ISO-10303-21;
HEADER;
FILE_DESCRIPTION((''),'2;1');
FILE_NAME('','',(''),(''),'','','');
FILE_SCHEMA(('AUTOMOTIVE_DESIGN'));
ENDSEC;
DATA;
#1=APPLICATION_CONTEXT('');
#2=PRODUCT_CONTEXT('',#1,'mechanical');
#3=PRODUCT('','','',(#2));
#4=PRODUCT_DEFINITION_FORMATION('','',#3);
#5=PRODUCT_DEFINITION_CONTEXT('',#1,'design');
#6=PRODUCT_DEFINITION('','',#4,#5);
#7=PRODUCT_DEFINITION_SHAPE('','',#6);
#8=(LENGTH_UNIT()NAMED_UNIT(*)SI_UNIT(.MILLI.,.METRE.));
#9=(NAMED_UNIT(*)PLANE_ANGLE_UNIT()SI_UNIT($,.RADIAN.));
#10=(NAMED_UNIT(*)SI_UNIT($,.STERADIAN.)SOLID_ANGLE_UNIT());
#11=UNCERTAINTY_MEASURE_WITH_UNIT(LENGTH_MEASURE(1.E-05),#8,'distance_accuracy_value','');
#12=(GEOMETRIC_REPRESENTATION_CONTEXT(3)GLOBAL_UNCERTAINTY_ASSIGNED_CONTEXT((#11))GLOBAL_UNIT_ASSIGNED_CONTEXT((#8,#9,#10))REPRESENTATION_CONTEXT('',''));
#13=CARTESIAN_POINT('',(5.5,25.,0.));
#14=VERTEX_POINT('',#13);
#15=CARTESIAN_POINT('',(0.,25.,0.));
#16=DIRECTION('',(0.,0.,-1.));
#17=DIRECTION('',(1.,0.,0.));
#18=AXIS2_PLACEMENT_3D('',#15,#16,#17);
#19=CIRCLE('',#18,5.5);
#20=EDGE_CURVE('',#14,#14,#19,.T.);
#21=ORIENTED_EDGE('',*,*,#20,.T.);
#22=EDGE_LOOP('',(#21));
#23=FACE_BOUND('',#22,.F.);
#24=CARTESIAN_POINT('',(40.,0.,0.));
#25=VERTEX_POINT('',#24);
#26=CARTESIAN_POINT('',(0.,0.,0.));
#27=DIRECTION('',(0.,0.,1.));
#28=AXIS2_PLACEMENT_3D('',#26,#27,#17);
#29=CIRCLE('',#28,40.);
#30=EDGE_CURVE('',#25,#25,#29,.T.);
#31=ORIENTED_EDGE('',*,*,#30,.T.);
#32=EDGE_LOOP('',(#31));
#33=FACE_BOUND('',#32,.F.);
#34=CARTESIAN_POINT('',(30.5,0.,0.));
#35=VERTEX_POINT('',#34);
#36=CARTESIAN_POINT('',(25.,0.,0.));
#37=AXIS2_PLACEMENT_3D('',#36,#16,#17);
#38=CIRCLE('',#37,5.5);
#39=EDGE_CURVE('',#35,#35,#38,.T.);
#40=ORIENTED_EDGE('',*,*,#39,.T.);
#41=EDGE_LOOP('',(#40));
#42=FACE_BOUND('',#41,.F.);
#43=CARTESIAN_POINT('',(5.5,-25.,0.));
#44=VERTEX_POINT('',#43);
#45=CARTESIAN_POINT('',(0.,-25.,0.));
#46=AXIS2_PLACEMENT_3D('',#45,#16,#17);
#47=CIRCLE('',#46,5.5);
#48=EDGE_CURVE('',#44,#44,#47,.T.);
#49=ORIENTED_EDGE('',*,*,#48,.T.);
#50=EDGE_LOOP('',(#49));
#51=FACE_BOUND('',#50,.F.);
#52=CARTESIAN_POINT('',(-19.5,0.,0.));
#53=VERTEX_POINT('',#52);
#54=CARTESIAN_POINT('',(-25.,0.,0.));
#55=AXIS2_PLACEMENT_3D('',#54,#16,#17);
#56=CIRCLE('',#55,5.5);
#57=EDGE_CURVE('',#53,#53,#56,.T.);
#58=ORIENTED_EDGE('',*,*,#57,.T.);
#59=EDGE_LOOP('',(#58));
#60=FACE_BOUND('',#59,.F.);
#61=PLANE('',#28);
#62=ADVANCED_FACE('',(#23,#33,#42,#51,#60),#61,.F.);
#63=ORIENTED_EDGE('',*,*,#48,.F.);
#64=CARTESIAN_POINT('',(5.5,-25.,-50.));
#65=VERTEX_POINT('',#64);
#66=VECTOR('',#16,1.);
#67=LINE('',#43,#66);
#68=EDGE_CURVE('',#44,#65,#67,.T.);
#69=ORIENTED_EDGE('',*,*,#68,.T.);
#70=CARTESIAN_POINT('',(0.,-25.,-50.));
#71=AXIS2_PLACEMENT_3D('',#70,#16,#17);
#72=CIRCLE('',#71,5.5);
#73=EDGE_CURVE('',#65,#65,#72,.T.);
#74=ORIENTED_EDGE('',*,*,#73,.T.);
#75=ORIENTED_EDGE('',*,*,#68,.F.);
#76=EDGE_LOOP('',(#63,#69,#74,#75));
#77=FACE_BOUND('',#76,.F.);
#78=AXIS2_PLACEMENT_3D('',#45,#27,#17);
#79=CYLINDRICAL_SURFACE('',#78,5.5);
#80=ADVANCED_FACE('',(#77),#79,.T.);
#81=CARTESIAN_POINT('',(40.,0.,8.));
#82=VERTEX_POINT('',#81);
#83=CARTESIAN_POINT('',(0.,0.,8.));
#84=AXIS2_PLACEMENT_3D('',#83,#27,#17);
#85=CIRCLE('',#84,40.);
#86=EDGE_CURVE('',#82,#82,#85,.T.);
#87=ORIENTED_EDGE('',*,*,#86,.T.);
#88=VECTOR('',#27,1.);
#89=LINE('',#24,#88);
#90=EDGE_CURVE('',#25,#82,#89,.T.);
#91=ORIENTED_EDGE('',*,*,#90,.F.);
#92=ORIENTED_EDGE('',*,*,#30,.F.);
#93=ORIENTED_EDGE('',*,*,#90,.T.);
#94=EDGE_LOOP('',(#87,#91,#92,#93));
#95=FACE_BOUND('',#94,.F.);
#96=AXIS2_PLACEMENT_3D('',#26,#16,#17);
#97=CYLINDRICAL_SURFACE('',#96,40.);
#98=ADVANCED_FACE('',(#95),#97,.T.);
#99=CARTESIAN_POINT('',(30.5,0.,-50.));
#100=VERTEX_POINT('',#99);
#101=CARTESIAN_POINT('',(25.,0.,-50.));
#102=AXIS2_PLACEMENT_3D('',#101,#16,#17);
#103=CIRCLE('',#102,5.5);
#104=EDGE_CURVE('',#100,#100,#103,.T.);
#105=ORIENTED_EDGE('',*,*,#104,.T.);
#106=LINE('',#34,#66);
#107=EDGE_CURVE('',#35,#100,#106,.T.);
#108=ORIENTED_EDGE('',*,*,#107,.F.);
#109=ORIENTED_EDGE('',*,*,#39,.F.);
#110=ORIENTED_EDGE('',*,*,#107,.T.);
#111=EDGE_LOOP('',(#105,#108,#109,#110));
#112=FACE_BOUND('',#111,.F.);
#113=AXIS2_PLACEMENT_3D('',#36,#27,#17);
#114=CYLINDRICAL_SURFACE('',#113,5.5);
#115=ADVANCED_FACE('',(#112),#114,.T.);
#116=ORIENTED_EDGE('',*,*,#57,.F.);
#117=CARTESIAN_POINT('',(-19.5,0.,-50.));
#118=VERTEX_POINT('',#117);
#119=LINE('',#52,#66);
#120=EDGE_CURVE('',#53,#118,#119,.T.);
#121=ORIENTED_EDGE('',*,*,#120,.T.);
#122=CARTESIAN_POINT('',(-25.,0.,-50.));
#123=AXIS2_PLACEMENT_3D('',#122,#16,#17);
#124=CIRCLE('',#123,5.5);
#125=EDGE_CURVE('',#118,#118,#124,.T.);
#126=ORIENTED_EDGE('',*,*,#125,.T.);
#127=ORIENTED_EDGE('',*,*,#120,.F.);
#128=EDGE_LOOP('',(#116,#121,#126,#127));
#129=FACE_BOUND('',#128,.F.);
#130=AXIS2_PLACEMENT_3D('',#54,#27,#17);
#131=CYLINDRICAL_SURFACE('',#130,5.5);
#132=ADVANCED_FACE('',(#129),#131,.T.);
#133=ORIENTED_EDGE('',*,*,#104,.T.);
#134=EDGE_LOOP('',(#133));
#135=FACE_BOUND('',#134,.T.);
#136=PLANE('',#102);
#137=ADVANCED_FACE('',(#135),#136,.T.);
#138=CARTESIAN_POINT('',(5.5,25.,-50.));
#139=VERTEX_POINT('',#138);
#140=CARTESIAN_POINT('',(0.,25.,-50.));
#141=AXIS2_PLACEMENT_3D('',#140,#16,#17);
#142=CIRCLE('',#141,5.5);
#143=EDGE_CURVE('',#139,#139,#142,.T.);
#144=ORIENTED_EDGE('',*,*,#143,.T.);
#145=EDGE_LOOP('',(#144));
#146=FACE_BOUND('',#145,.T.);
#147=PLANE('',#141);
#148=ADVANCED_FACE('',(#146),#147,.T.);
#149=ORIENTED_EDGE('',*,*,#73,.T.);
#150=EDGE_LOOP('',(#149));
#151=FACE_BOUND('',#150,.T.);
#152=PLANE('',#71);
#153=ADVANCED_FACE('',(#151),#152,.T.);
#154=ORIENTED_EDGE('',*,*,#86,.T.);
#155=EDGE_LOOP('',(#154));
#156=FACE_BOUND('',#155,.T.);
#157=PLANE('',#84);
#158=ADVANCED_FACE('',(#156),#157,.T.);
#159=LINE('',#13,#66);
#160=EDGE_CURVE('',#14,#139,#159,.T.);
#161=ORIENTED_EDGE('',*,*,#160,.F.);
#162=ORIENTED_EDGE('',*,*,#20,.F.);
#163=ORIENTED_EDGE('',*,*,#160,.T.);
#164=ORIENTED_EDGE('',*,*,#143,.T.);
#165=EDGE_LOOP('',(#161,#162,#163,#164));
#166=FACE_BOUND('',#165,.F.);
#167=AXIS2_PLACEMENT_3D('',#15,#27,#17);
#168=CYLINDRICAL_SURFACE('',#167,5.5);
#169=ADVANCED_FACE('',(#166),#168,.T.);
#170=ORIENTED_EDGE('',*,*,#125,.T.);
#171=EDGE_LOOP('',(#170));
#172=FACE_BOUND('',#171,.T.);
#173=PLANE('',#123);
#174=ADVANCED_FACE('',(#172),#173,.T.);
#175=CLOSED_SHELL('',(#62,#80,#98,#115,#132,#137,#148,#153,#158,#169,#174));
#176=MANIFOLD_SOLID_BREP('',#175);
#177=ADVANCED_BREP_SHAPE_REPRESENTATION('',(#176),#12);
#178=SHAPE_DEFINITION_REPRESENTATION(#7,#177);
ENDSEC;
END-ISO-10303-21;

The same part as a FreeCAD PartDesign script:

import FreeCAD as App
import Part
import Sketcher
Q = App.Units.Quantity

doc = App.newDocument("Part")
body = doc.addObject("PartDesign::Body", "Body")

# Sketch on XY plane
sketch1 = doc.addObject("Sketcher::SketchObject", "Sketch")
body.addObject(sketch1)
sketch1.AttachmentSupport = (doc.XY_Plane, [""])
sketch1.MapMode = "FlatFace"
sketch1.addGeometry(Part.Circle(App.Vector(0, 0, 0), App.Vector(0, 0, 1), 40), False)
sketch1.addConstraint(Sketcher.Constraint("Coincident", 0, 3, -1, 1))
sketch1.addConstraint(Sketcher.Constraint("Diameter", 0, Q("80 mm")))
pad1 = doc.addObject("PartDesign::Pad", "Pad")
body.addObject(pad1)
pad1.Profile = sketch1
pad1.Length = 8

# Sketch on XY plane
sketch2 = doc.addObject("Sketcher::SketchObject", "Sketch001")
body.addObject(sketch2)
sketch2.AttachmentSupport = (doc.XY_Plane, [""])
sketch2.MapMode = "FlatFace"
sketch2.addGeometry(Part.Circle(App.Vector(0, -25, 0), App.Vector(0, 0, 1), 6), False)
sketch2.addGeometry(Part.Circle(App.Vector(-25, 0, 0), App.Vector(0, 0, 1), 6), False)
sketch2.addGeometry(Part.Circle(App.Vector(0, 25, 0), App.Vector(0, 0, 1), 6), False)
sketch2.addGeometry(Part.Circle(App.Vector(25, 0, 0), App.Vector(0, 0, 1), 6), False)
sketch2.addConstraint(Sketcher.Constraint("Equal", 0, 1))
sketch2.addConstraint(Sketcher.Constraint("Equal", 1, 2))
sketch2.addConstraint(Sketcher.Constraint("Equal", 2, 3))
sketch2.addConstraint(Sketcher.Constraint("Symmetric", 0, 3, 2, 3, -1, 1))
sketch2.addConstraint(Sketcher.Constraint("Symmetric", 1, 3, 3, 3, -1, 1))
sketch2.addConstraint(Sketcher.Constraint("PointOnObject", 0, 3, -2))
sketch2.addConstraint(Sketcher.Constraint("PointOnObject", 1, 3, -1))
sketch2.addConstraint(Sketcher.Constraint("Diameter", 0, Q("11 mm")))
sketch2.addConstraint(Sketcher.Constraint("DistanceY", 0, 3, -1, 1, Q("25 mm")))
sketch2.addConstraint(Sketcher.Constraint("DistanceX", 1, 3, -1, 1, Q("25 mm")))
pad2 = doc.addObject("PartDesign::Pad", "Pad001")
body.addObject(pad2)
pad2.Profile = sketch2
pad2.Length = 50
pad2.Reversed = True

doc.recompute()
